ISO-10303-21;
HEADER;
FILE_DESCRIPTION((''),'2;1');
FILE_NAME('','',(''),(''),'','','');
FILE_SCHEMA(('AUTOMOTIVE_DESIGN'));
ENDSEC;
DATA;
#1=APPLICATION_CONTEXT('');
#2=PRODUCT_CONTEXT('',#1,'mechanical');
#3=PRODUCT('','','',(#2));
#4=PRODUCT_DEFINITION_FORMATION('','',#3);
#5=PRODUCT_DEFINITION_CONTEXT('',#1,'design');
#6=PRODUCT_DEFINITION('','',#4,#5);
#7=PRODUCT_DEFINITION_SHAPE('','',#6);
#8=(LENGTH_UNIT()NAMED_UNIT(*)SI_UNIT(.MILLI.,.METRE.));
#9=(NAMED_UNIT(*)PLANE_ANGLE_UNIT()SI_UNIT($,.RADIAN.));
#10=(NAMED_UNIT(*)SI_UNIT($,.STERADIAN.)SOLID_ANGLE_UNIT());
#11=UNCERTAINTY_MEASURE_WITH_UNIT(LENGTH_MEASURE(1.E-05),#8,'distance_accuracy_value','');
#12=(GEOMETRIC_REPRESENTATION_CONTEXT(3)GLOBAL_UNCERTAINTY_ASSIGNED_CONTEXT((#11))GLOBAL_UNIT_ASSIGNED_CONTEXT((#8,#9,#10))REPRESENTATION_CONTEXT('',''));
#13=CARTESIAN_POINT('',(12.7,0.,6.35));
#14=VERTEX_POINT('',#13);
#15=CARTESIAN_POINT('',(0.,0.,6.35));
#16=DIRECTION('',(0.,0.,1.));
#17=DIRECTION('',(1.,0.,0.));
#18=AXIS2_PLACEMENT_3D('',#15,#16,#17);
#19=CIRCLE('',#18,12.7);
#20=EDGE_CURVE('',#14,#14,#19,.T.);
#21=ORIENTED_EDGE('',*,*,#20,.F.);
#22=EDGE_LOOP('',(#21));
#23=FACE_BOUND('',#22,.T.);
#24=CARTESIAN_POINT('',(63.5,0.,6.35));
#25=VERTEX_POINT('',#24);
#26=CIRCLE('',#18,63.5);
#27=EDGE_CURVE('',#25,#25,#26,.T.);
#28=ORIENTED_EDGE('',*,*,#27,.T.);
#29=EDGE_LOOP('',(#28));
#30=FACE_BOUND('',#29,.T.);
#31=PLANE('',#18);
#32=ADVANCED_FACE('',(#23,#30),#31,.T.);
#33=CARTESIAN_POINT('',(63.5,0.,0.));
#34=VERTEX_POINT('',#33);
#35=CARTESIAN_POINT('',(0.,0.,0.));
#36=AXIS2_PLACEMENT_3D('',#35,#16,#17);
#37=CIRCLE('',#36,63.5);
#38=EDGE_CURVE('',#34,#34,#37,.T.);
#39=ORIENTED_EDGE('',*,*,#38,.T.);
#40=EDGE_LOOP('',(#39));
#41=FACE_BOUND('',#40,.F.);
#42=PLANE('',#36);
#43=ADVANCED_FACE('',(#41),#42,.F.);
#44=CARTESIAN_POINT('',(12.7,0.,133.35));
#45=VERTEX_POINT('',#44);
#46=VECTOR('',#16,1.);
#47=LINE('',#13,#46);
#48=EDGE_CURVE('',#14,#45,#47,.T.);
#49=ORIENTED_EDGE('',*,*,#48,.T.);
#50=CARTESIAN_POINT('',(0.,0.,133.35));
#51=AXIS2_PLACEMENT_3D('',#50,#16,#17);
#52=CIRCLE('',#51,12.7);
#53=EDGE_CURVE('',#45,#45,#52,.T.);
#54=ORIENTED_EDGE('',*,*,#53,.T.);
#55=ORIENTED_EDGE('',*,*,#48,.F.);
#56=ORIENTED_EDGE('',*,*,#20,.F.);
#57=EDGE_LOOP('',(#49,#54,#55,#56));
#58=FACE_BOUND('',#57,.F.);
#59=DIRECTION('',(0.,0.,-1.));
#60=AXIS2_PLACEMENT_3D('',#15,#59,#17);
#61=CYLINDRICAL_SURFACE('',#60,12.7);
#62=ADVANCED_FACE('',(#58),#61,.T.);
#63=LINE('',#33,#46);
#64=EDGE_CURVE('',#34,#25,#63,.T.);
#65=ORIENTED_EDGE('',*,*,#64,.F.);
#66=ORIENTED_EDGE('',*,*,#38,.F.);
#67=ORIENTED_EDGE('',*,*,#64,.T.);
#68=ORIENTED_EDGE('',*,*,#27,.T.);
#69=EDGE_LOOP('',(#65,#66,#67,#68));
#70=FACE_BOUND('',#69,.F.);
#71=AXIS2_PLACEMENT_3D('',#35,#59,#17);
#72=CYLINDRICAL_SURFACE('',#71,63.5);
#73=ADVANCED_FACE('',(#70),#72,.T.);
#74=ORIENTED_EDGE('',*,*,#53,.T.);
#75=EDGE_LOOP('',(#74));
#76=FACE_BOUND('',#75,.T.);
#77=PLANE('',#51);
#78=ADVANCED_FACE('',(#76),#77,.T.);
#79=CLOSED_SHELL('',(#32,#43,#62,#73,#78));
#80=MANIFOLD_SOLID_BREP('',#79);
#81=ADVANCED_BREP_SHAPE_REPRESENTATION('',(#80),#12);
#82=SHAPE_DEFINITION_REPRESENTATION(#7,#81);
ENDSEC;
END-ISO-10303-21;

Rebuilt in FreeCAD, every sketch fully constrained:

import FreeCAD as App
import Part
import Sketcher
Q = App.Units.Quantity

doc = App.newDocument("Part")
params = doc.addObject("Spreadsheet::Sheet", "Params")
for row, (alias, value) in enumerate([
    ("sketch1_diameter", "5 in"),
    ("pad1_length", "0.25 in"),
    ("sketch2_diameter", "1 in"),
    ("pad2_length", "5 in"),
], start=1):
    params.set(f"A{row}", alias)
    params.set(f"B{row}", "=" + value)
    params.setAlias(f"B{row}", alias)

body = doc.addObject("PartDesign::Body", "Body")

# Sketch on XY plane
sketch1 = body.newObject("Sketcher::SketchObject", "Sketch")
sketch1.AttachmentSupport = (doc.getObject("XY_Plane"), [""])
sketch1.MapMode = "FlatFace"
sketch1.addGeometry(Part.Circle(App.Vector(0, 0, 0), App.Vector(0, 0, 1), 64), False)
sketch1.addConstraint(Sketcher.Constraint("Coincident", 0, 3, -1, 1))
sketch1.addConstraint(Sketcher.Constraint("Diameter", 0, Q("5 in")))
sketch1.setExpression("Constraints[1]", "Params.sketch1_diameter")
pad1 = body.newObject("PartDesign::Pad", "Pad")
pad1.Profile = sketch1
pad1.setExpression("Length", "Params.pad1_length")

# Sketch on XY plane
sketch2 = body.newObject("Sketcher::SketchObject", "Sketch001")
sketch2.AttachmentSupport = (doc.getObject("XY_Plane"), [""])
sketch2.MapMode = "FlatFace"
sketch2.AttachmentOffset = App.Placement(App.Vector(0, 0, 0.25 * 25.4), App.Rotation())
sketch2.addGeometry(Part.Circle(App.Vector(0, 0, 0), App.Vector(0, 0, 1), 13), False)
sketch2.addConstraint(Sketcher.Constraint("Coincident", 0, 3, -1, 1))
sketch2.addConstraint(Sketcher.Constraint("Diameter", 0, Q("1 in")))
sketch2.setExpression("Constraints[1]", "Params.sketch2_diameter")
pad2 = body.newObject("PartDesign::Pad", "Pad001")
pad2.Profile = sketch2
pad2.setExpression("Length", "Params.pad2_length")

doc.recompute()
